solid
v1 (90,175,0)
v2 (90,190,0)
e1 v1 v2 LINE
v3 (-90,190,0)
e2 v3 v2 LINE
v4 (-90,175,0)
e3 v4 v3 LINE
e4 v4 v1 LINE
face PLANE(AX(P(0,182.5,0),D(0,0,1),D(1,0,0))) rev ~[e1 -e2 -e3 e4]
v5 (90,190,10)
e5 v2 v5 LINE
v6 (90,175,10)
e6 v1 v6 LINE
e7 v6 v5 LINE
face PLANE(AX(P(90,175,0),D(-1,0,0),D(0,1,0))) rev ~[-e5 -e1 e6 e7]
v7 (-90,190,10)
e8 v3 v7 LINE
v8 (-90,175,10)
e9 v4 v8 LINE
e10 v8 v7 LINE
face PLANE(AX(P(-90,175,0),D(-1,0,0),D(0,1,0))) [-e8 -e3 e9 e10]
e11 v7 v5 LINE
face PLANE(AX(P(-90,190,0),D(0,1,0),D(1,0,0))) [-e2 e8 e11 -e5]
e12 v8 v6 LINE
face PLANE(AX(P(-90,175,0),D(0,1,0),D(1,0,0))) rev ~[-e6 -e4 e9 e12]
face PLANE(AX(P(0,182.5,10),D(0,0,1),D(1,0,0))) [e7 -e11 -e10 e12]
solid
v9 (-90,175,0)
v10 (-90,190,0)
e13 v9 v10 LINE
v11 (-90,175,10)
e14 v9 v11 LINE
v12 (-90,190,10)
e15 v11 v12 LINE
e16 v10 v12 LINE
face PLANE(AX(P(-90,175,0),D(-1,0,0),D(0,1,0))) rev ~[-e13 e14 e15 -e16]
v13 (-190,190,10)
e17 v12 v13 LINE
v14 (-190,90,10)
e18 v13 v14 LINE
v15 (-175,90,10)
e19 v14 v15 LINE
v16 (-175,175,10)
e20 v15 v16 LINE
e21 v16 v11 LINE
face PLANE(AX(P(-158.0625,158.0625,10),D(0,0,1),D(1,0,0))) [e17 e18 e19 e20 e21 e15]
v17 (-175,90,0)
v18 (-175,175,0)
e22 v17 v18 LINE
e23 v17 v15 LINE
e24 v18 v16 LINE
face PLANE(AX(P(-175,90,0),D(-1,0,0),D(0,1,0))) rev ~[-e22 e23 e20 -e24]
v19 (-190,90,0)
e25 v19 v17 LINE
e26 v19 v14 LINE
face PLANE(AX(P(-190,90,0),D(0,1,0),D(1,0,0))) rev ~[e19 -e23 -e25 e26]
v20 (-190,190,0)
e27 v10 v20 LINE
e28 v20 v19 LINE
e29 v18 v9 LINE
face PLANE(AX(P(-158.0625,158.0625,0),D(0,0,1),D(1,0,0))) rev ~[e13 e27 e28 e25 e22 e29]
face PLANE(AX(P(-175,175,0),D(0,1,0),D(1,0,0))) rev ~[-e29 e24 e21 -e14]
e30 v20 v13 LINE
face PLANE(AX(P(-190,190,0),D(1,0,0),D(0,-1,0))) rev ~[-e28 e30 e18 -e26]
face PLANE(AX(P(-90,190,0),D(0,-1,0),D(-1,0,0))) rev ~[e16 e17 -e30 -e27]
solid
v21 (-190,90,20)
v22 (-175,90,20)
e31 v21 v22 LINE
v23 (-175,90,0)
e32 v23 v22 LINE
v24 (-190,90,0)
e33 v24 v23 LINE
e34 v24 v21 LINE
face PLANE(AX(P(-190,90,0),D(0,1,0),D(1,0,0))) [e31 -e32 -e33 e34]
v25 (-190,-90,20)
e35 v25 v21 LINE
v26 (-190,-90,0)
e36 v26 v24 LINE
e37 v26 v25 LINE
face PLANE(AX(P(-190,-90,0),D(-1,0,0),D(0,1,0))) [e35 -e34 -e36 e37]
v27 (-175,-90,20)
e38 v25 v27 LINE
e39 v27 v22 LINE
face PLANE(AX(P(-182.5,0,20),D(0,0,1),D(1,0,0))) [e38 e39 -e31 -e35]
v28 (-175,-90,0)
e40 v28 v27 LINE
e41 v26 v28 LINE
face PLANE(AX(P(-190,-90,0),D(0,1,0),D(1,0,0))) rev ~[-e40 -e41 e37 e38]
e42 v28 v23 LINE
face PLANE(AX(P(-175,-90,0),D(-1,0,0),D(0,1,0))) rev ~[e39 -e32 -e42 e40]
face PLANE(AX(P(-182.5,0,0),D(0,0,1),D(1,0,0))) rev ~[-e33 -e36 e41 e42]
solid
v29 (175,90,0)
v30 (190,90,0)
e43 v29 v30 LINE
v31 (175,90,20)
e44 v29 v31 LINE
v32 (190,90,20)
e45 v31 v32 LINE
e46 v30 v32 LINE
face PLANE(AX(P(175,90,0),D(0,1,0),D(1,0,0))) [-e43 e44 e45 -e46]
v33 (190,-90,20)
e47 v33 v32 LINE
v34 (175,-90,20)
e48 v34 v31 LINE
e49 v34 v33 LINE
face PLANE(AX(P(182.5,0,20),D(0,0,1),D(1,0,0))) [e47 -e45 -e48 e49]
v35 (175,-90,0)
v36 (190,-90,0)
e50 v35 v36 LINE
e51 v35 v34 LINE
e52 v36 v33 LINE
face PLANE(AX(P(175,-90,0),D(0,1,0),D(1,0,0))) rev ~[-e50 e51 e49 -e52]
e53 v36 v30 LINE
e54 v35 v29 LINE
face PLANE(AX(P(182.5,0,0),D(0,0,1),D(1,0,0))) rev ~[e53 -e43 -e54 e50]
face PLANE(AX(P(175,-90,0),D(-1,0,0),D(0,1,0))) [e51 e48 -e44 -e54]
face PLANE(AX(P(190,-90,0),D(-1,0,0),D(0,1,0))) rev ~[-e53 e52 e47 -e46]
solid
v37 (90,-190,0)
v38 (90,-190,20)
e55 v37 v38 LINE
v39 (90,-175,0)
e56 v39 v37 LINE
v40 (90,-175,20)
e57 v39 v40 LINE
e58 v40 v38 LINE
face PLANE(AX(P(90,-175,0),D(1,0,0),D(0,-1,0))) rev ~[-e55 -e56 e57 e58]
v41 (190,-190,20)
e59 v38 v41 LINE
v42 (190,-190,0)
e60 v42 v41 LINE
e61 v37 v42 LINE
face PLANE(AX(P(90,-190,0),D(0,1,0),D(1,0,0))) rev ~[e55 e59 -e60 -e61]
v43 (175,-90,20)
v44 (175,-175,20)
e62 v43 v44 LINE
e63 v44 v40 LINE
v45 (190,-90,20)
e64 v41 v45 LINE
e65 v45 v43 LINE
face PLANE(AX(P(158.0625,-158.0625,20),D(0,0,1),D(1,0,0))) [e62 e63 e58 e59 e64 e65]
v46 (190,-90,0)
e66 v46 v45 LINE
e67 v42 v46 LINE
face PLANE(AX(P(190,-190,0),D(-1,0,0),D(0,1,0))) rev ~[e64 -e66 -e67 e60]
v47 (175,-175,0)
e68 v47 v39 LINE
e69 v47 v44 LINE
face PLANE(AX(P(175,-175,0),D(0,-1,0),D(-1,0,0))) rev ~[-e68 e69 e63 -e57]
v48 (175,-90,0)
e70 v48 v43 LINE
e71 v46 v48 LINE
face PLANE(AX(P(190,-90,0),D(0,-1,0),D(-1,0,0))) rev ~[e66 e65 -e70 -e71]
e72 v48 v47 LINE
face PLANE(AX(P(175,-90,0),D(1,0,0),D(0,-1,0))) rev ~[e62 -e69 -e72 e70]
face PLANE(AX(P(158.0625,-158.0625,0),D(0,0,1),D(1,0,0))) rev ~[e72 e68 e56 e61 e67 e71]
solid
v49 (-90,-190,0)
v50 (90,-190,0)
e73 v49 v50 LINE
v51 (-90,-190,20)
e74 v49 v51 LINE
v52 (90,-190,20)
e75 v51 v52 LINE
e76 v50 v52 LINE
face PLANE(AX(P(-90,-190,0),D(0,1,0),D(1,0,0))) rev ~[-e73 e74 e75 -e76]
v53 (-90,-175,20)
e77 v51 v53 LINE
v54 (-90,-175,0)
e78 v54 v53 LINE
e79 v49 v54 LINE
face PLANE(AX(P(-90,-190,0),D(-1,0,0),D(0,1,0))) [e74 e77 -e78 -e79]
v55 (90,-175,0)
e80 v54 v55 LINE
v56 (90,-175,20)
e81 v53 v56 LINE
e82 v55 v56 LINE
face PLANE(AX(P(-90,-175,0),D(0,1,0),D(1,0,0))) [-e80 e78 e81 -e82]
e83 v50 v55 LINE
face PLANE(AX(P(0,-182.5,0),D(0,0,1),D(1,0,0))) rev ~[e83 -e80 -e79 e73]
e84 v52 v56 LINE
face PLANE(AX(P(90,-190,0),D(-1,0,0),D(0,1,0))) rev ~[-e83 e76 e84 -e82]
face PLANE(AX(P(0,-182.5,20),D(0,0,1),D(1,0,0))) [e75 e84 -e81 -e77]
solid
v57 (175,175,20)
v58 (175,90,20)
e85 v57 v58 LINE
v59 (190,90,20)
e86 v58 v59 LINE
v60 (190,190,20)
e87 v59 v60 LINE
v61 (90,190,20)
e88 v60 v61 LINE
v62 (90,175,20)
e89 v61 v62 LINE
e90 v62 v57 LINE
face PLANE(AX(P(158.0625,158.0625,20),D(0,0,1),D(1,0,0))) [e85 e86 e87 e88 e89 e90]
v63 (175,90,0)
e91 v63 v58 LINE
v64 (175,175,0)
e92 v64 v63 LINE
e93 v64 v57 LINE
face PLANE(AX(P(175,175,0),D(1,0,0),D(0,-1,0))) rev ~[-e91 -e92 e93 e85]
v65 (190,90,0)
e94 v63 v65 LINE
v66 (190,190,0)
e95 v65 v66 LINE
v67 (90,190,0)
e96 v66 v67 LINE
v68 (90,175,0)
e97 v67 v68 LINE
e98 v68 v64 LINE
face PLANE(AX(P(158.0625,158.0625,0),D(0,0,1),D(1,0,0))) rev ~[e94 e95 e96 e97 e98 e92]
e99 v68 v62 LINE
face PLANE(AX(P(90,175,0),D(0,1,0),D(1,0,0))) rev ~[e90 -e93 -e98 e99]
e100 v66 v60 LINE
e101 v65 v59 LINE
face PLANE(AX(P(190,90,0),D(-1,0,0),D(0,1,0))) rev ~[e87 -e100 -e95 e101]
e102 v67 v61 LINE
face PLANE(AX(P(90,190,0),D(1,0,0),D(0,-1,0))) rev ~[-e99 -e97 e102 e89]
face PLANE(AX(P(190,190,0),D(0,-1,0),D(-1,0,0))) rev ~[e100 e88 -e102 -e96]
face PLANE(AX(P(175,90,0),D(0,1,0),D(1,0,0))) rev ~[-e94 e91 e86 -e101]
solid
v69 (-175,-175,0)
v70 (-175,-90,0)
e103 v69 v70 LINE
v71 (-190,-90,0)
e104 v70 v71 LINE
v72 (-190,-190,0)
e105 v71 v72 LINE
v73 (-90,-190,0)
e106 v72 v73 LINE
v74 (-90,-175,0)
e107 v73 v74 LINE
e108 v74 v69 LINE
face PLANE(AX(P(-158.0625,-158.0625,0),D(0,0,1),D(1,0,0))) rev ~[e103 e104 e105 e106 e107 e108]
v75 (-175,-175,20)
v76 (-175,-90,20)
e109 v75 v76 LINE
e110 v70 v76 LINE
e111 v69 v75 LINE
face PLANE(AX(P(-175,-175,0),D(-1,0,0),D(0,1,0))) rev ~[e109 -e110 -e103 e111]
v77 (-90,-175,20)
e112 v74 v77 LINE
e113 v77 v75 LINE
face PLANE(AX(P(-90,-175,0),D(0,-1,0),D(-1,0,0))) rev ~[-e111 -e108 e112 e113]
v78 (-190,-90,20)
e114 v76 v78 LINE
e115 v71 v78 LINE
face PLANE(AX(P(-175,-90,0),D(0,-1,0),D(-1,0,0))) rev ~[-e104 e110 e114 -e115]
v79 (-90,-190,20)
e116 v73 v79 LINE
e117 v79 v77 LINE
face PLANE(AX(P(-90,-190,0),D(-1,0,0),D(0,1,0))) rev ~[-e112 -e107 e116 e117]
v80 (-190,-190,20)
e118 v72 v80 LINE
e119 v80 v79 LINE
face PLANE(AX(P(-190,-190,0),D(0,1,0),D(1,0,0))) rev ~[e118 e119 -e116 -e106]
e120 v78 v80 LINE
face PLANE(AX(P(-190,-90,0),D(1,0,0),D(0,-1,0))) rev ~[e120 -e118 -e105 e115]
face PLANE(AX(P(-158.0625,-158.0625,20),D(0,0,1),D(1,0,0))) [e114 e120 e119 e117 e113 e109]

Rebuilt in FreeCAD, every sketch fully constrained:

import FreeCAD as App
import Part
import Sketcher

V = App.Vector
Q = App.Units.Quantity


def add_polygon(sketch, points):
    """Adds a closed chain of lines whose ends are joined by coincident constraints."""
    first, n = sketch.GeometryCount, len(points)
    for a, b in zip(points, points[1:] + points[:1]):
        sketch.addGeometry(Part.LineSegment(App.Vector(*a, 0), App.Vector(*b, 0)), False)
    for i in range(n):
        sketch.addConstraint(Sketcher.Constraint("Coincident", first + i, 2, first + (i + 1) % n, 1))

doc = App.newDocument("Part")
params = doc.addObject("Spreadsheet::Sheet", "Params")
for row, (alias, value) in enumerate([
    ("sketch1_width", "15 mm"),
    ("sketch1_width2", "85 mm"),
    ("pad1_length", "10 mm"),
    ("sketch2_width", "180 mm"),
    ("sketch2_height", "15 mm"),
    ("pad2_length", "10 mm"),
    ("sketch3_width", "15 mm"),
    ("sketch3_width2", "100 mm"),
    ("pad3_length", "20 mm"),
    ("sketch4_width", "15 mm"),
    ("sketch4_height", "180 mm"),
    ("pad4_length", "20 mm"),
    ("sketch5_width", "85 mm"),
    ("sketch5_width2", "15 mm"),
    ("pad5_length", "20 mm"),
    ("sketch6_width", "180 mm"),
    ("sketch6_height", "15 mm"),
    ("pad6_length", "20 mm"),
    ("sketch7_width", "85 mm"),
    ("sketch7_width2", "100 mm"),
    ("pad7_length", "20 mm"),
    ("sketch8_width", "15 mm"),
    ("sketch8_height", "180 mm"),
    ("pad8_length", "20 mm"),
], start=1):
    params.set(f"A{row}", alias)
    params.set(f"B{row}", "=" + value)
    params.setAlias(f"B{row}", alias)

body = doc.addObject("PartDesign::Body", "Body")

# Sketch on XY plane
sketch1 = body.newObject("Sketcher::SketchObject", "Sketch")
sketch1.AttachmentSupport = (doc.getObject("XY_Plane"), [""])
sketch1.MapMode = "FlatFace"
add_polygon(sketch1, [(-190, 90), (-175, 90), (-175, 175), (-90, 175), (-90, 190), (-190, 190)])  # lines 0-5
sketch1.addConstraint(Sketcher.Constraint("Horizontal", 0))
sketch1.addConstraint(Sketcher.Constraint("Vertical", 1))
sketch1.addConstraint(Sketcher.Constraint("Horizontal", 2))
sketch1.addConstraint(Sketcher.Constraint("Vertical", 3))
sketch1.addConstraint(Sketcher.Constraint("Horizontal", 4))
sketch1.addConstraint(Sketcher.Constraint("Vertical", 5))
sketch1.addConstraint(Sketcher.Constraint("Equal", 2, 1))
sketch1.addConstraint(Sketcher.Constraint("Equal", 0, 3))
sketch1.addConstraint(Sketcher.Constraint("DistanceX", 0, 1, 0, 2, Q("15 mm")))
sketch1.addConstraint(Sketcher.Constraint("DistanceX", 2, 1, 2, 2, Q("85 mm")))
sketch1.addConstraint(Sketcher.Constraint("DistanceX", 0, 2, -1, 1, Q("175 mm")))
sketch1.addConstraint(Sketcher.Constraint("DistanceY", -1, 1, 0, 2, Q("90 mm")))
sketch1.setExpression("Constraints[14]", "Params.sketch1_width")
sketch1.setExpression("Constraints[15]", "Params.sketch1_width2")
pad1 = body.newObject("PartDesign::Pad", "Pad")
pad1.Profile = sketch1
pad1.setExpression("Length", "Params.pad1_length")
body2 = doc.addObject("PartDesign::Body", "Body001")

# Sketch on XY plane
sketch2 = body2.newObject("Sketcher::SketchObject", "Sketch001")
sketch2.AttachmentSupport = (doc.getObject("XY_Plane001"), [""])
sketch2.MapMode = "FlatFace"
add_polygon(sketch2, [(-90, 190), (-90, 175), (90, 175), (90, 190)])  # lines 0-3
sketch2.addConstraint(Sketcher.Constraint("Vertical", 0))
sketch2.addConstraint(Sketcher.Constraint("Horizontal", 1))
sketch2.addConstraint(Sketcher.Constraint("Vertical", 2))
sketch2.addConstraint(Sketcher.Constraint("Horizontal", 3))
sketch2.addConstraint(Sketcher.Constraint("DistanceX", 1, 1, 1, 2, Q("180 mm")))
sketch2.addConstraint(Sketcher.Constraint("DistanceY", 0, 2, 0, 1, Q("15 mm")))
sketch2.addConstraint(Sketcher.Constraint("DistanceX", 0, 2, -1, 1, Q("90 mm")))
sketch2.addConstraint(Sketcher.Constraint("DistanceY", -1, 1, 0, 2, Q("175 mm")))
sketch2.setExpression("Constraints[8]", "Params.sketch2_width")
sketch2.setExpression("Constraints[9]", "Params.sketch2_height")
pad2 = body2.newObject("PartDesign::Pad", "Pad001")
pad2.Profile = sketch2
pad2.setExpression("Length", "Params.pad2_length")
body3 = doc.addObject("PartDesign::Body", "Body002")

# Sketch on XY plane
sketch3 = body3.newObject("Sketcher::SketchObject", "Sketch002")
sketch3.AttachmentSupport = (doc.getObject("XY_Plane002"), [""])
sketch3.MapMode = "FlatFace"
add_polygon(sketch3, [(175, 175), (175, 90), (190, 90), (190, 190), (90, 190), (90, 175)])  # lines 0-5
sketch3.addConstraint(Sketcher.Constraint("Vertical", 0))
sketch3.addConstraint(Sketcher.Constraint("Horizontal", 1))
sketch3.addConstraint(Sketcher.Constraint("Vertical", 2))
sketch3.addConstraint(Sketcher.Constraint("Horizontal", 3))
sketch3.addConstraint(Sketcher.Constraint("Vertical", 4))
sketch3.addConstraint(Sketcher.Constraint("Horizontal", 5))
sketch3.addConstraint(Sketcher.Constraint("Equal", 5, 0))
sketch3.addConstraint(Sketcher.Constraint("Equal", 3, 2))
sketch3.addConstraint(Sketcher.Constraint("DistanceX", 1, 1, 1, 2, Q("15 mm")))
sketch3.addConstraint(Sketcher.Constraint("DistanceX", 3, 2, 3, 1, Q("100 mm")))
sketch3.addConstraint(Sketcher.Constraint("DistanceX", -1, 1, 0, 2, Q("175 mm")))
sketch3.addConstraint(Sketcher.Constraint("DistanceY", -1, 1, 0, 2, Q("90 mm")))
sketch3.setExpression("Constraints[14]", "Params.sketch3_width")
sketch3.setExpression("Constraints[15]", "Params.sketch3_width2")
pad3 = body3.newObject("PartDesign::Pad", "Pad002")
pad3.Profile = sketch3
pad3.setExpression("Length", "Params.pad3_length")
body4 = doc.addObject("PartDesign::Body", "Body003")

# Sketch on XY plane
sketch4 = body4.newObject("Sketcher::SketchObject", "Sketch003")
sketch4.AttachmentSupport = (doc.getObject("XY_Plane003"), [""])
sketch4.MapMode = "FlatFace"
add_polygon(sketch4, [(-190, 90), (-190, -90), (-175, -90), (-175, 90)])  # lines 0-3
sketch4.addConstraint(Sketcher.Constraint("Vertical", 0))
sketch4.addConstraint(Sketcher.Constraint("Horizontal", 1))
sketch4.addConstraint(Sketcher.Constraint("Vertical", 2))
sketch4.addConstraint(Sketcher.Constraint("Horizontal", 3))
sketch4.addConstraint(Sketcher.Constraint("DistanceX", 1, 1, 1, 2, Q("15 mm")))
sketch4.addConstraint(Sketcher.Constraint("DistanceY", 0, 2, 0, 1, Q("180 mm")))
sketch4.addConstraint(Sketcher.Constraint("DistanceX", 0, 2, -1, 1, Q("190 mm")))
sketch4.addConstraint(Sketcher.Constraint("DistanceY", 0, 2, -1, 1, Q("90 mm")))
sketch4.setExpression("Constraints[8]", "Params.sketch4_width")
sketch4.setExpression("Constraints[9]", "Params.sketch4_height")
pad4 = body4.newObject("PartDesign::Pad", "Pad003")
pad4.Profile = sketch4
pad4.setExpression("Length", "Params.pad4_length")
body5 = doc.addObject("PartDesign::Body", "Body004")

# Sketch on XY plane
sketch5 = body5.newObject("Sketcher::SketchObject", "Sketch004")
sketch5.AttachmentSupport = (doc.getObject("XY_Plane004"), [""])
sketch5.MapMode = "FlatFace"
add_polygon(sketch5, [(-90, -190), (-90, -175), (-175, -175), (-175, -90), (-190, -90), (-190, -190)])  # lines 0-5
sketch5.addConstraint(Sketcher.Constraint("Vertical", 0))
sketch5.addConstraint(Sketcher.Constraint("Horizontal", 1))
sketch5.addConstraint(Sketcher.Constraint("Vertical", 2))
sketch5.addConstraint(Sketcher.Constraint("Horizontal", 3))
sketch5.addConstraint(Sketcher.Constraint("Vertical", 4))
sketch5.addConstraint(Sketcher.Constraint("Horizontal", 5))
sketch5.addConstraint(Sketcher.Constraint("Equal", 3, 0))
sketch5.addConstraint(Sketcher.Constraint("Equal", 1, 2))
sketch5.addConstraint(Sketcher.Constraint("DistanceX", 1, 2, 1, 1, Q("85 mm")))
sketch5.addConstraint(Sketcher.Constraint("DistanceX", 3, 2, 3, 1, Q("15 mm")))
sketch5.addConstraint(Sketcher.Constraint("DistanceX", 0, 2, -1, 1, Q("90 mm")))
sketch5.addConstraint(Sketcher.Constraint("DistanceY", 0, 2, -1, 1, Q("175 mm")))
sketch5.setExpression("Constraints[14]", "Params.sketch5_width")
sketch5.setExpression("Constraints[15]", "Params.sketch5_width2")
pad5 = body5.newObject("PartDesign::Pad", "Pad004")
pad5.Profile = sketch5
pad5.setExpression("Length", "Params.pad5_length")
body6 = doc.addObject("PartDesign::Body", "Body005")

# Sketch on XY plane
sketch6 = body6.newObject("Sketcher::SketchObject", "Sketch005")
sketch6.AttachmentSupport = (doc.getObject("XY_Plane005"), [""])
sketch6.MapMode = "FlatFace"
add_polygon(sketch6, [(-90, -175), (-90, -190), (90, -190), (90, -175)])  # lines 0-3
sketch6.addConstraint(Sketcher.Constraint("Vertical", 0))
sketch6.addConstraint(Sketcher.Constraint("Horizontal", 1))
sketch6.addConstraint(Sketcher.Constraint("Vertical", 2))
sketch6.addConstraint(Sketcher.Constraint("Horizontal", 3))
sketch6.addConstraint(Sketcher.Constraint("DistanceX", 1, 1, 1, 2, Q("180 mm")))
sketch6.addConstraint(Sketcher.Constraint("DistanceY", 0, 2, 0, 1, Q("15 mm")))
sketch6.addConstraint(Sketcher.Constraint("DistanceX", 0, 2, -1, 1, Q("90 mm")))
sketch6.addConstraint(Sketcher.Constraint("DistanceY", 0, 2, -1, 1, Q("190 mm")))
sketch6.setExpression("Constraints[8]", "Params.sketch6_width")
sketch6.setExpression("Constraints[9]", "Params.sketch6_height")
pad6 = body6.newObject("PartDesign::Pad", "Pad005")
pad6.Profile = sketch6
pad6.setExpression("Length", "Params.pad6_length")
body7 = doc.addObject("PartDesign::Body", "Body006")

# Sketch on XY plane
sketch7 = body7.newObject("Sketcher::SketchObject", "Sketch006")
sketch7.AttachmentSupport = (doc.getObject("XY_Plane006"), [""])
sketch7.MapMode = "FlatFace"
add_polygon(sketch7, [(175, -90), (175, -175), (90, -175), (90, -190), (190, -190), (190, -90)])  # lines 0-5
sketch7.addConstraint(Sketcher.Constraint("Vertical", 0))
sketch7.addConstraint(Sketcher.Constraint("Horizontal", 1))
sketch7.addConstraint(Sketcher.Constraint("Vertical", 2))
sketch7.addConstraint(Sketcher.Constraint("Horizontal", 3))
sketch7.addConstraint(Sketcher.Constraint("Vertical", 4))
sketch7.addConstraint(Sketcher.Constraint("Horizontal", 5))
sketch7.addConstraint(Sketcher.Constraint("Equal", 1, 0))
sketch7.addConstraint(Sketcher.Constraint("Equal", 5, 2))
sketch7.addConstraint(Sketcher.Constraint("DistanceX", 1, 2, 1, 1, Q("85 mm")))
sketch7.addConstraint(Sketcher.Constraint("DistanceX", 3, 1, 3, 2, Q("100 mm")))
sketch7.addConstraint(Sketcher.Constraint("DistanceX", -1, 1, 0, 2, Q("175 mm")))
sketch7.addConstraint(Sketcher.Constraint("DistanceY", 0, 2, -1, 1, Q("175 mm")))
sketch7.setExpression("Constraints[14]", "Params.sketch7_width")
sketch7.setExpression("Constraints[15]", "Params.sketch7_width2")
pad7 = body7.newObject("PartDesign::Pad", "Pad006")
pad7.Profile = sketch7
pad7.setExpression("Length", "Params.pad7_length")
body8 = doc.addObject("PartDesign::Body", "Body007")

# Sketch on XY plane
sketch8 = body8.newObject("Sketcher::SketchObject", "Sketch007")
sketch8.AttachmentSupport = (doc.getObject("XY_Plane007"), [""])
sketch8.MapMode = "FlatFace"
add_polygon(sketch8, [(175, 90), (175, -90), (190, -90), (190, 90)])  # lines 0-3
sketch8.addConstraint(Sketcher.Constraint("Vertical", 0))
sketch8.addConstraint(Sketcher.Constraint("Horizontal", 1))
sketch8.addConstraint(Sketcher.Constraint("Vertical", 2))
sketch8.addConstraint(Sketcher.Constraint("Horizontal", 3))
sketch8.addConstraint(Sketcher.Constraint("DistanceX", 1, 1, 1, 2, Q("15 mm")))
sketch8.addConstraint(Sketcher.Constraint("DistanceY", 0, 2, 0, 1, Q("180 mm")))
sketch8.addConstraint(Sketcher.Constraint("DistanceX", -1, 1, 0, 2, Q("175 mm")))
sketch8.addConstraint(Sketcher.Constraint("DistanceY", 0, 2, -1, 1, Q("90 mm")))
sketch8.setExpression("Constraints[8]", "Params.sketch8_width")
sketch8.setExpression("Constraints[9]", "Params.sketch8_height")
pad8 = body8.newObject("PartDesign::Pad", "Pad007")
pad8.Profile = sketch8
pad8.setExpression("Length", "Params.pad8_length")

doc.recompute()
